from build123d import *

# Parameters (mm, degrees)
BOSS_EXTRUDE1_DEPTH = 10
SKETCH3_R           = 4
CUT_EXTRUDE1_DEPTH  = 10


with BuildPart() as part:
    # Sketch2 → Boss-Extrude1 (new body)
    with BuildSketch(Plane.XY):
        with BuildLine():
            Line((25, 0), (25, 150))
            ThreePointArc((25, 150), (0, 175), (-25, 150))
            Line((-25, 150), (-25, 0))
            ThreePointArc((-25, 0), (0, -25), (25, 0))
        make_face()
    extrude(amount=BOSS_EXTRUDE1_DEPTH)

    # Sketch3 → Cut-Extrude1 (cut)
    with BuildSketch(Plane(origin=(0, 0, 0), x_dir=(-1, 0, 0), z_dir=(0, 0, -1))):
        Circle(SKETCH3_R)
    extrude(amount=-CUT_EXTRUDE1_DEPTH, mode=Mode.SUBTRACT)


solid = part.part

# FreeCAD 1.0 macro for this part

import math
import FreeCAD as App
import Part
import Sketcher

V = App.Vector

doc = App.newDocument("Part")
body = doc.addObject("PartDesign::Body", "Body")

# Sketch on XY plane
sketch1 = body.newObject("Sketcher::SketchObject", "Sketch")
sketch1.AttachmentSupport = (doc.getObject("XY_Plane"), [""])
sketch1.MapMode = "FlatFace"
sketch1.addGeometry(Part.LineSegment(V(25, 0, 0), V(25, 150, 0)), False)
sketch1.addGeometry(Part.ArcOfCircle(Part.Circle(V(0, 150, 0), V(0, 0, 1), 25), math.radians(0), math.radians(180)), False)
sketch1.addGeometry(Part.LineSegment(V(-25, 150, 0), V(-25, 0, 0)), False)
sketch1.addGeometry(Part.ArcOfCircle(Part.Circle(V(0, 0, 0), V(0, 0, 1), 25), math.radians(180), math.radians(360)), False)
sketch1.addConstraint(Sketcher.Constraint("Tangent", 0, 2, 1, 1))
sketch1.addConstraint(Sketcher.Constraint("Tangent", 1, 2, 2, 1))
sketch1.addConstraint(Sketcher.Constraint("Tangent", 2, 2, 3, 1))
sketch1.addConstraint(Sketcher.Constraint("Tangent", 3, 2, 0, 1))
sketch1.addConstraint(Sketcher.Constraint("Vertical", 0))
sketch1.addConstraint(Sketcher.Constraint("Vertical", 2))
sketch1.addConstraint(Sketcher.Constraint("Coincident", 3, 3, -1, 1))
sketch1.addConstraint(Sketcher.Constraint("Radius", 1, 25.0))
sketch1.addConstraint(Sketcher.Constraint("DistanceY", 0, 1, 0, 2, 150.0))
pad1 = body.newObject("PartDesign::Pad", "Pad")
pad1.Profile = sketch1
pad1.Length = 10

# Sketch on XY plane
sketch2 = body.newObject("Sketcher::SketchObject", "Sketch001")
sketch2.AttachmentSupport = (doc.getObject("XY_Plane"), [""])
sketch2.MapMode = "FlatFace"
sketch2.addGeometry(Part.Circle(V(0, 0, 0), V(0, 0, 1), 4), False)
sketch2.addConstraint(Sketcher.Constraint("Coincident", 0, 3, -1, 1))
sketch2.addConstraint(Sketcher.Constraint("Diameter", 0, 8.0))
pocket1 = body.newObject("PartDesign::Pocket", "Pocket")
pocket1.Profile = sketch2
pocket1.Length = 10
pocket1.Reversed = True

doc.recompute()
